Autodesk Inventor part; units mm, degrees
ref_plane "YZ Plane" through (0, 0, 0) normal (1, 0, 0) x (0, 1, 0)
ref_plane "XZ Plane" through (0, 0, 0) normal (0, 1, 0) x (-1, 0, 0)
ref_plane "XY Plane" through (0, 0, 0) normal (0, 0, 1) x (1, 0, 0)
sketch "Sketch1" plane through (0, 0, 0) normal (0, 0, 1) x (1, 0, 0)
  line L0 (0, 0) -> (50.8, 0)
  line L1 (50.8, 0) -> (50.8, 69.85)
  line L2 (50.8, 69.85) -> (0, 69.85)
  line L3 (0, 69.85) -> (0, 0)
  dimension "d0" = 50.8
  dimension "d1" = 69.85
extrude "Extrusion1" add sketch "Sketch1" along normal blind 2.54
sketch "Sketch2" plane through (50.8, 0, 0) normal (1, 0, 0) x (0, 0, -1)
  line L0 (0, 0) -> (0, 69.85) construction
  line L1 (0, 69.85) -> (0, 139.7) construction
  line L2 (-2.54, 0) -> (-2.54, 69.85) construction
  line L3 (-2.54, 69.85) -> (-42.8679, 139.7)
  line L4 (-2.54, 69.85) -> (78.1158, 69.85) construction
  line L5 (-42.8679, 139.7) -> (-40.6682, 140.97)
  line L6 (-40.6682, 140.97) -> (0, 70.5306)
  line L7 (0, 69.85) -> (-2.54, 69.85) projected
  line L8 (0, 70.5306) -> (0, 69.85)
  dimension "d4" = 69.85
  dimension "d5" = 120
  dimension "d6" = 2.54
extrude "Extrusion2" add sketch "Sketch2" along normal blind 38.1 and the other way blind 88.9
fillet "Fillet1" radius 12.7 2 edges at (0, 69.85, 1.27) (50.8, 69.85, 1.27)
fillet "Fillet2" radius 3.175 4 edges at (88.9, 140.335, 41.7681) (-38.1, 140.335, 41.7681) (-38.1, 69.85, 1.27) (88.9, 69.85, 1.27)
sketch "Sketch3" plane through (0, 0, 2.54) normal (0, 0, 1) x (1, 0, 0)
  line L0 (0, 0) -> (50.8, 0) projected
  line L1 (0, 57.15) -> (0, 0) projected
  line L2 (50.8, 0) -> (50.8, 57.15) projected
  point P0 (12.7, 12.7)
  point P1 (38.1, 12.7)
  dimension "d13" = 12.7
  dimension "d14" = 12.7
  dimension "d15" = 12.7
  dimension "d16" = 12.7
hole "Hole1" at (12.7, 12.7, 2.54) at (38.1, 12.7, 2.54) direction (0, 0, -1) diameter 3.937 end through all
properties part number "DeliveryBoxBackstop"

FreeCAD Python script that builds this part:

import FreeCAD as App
import Part
import Sketcher
from FreeCAD import Vector
Q = App.Units.Quantity


def edges_at(feature, points):
    """Names of the edges that pass closest to the given points."""
    edges = feature.Shape.Edges
    near = lambda p: min(range(len(edges)), key=lambda i: edges[i].distToShape(Part.Vertex(*p))[0])
    return sorted({f"Edge{near(p) + 1}" for p in points})


def add_polygon(sketch, points):
    """Adds a closed chain of lines whose ends are joined by coincident constraints."""
    first, n = sketch.GeometryCount, len(points)
    for a, b in zip(points, points[1:] + points[:1]):
        sketch.addGeometry(Part.LineSegment(App.Vector(*a, 0), App.Vector(*b, 0)), False)
    for i in range(n):
        sketch.addConstraint(Sketcher.Constraint("Coincident", first + i, 2, first + (i + 1) % n, 1))

doc = App.newDocument("Part")
body = doc.addObject("PartDesign::Body", "Body")

# Sketch on XY plane
sketch1 = body.newObject("Sketcher::SketchObject", "Sketch")
sketch1.AttachmentSupport = (doc.getObject("XY_Plane"), [""])
sketch1.MapMode = "FlatFace"
add_polygon(sketch1, [(0, 70), (0, 0), (51, 0), (51, 70)])  # lines 0-3
sketch1.addConstraint([
    Sketcher.Constraint("Vertical", 0),
    Sketcher.Constraint("Horizontal", 1),
    Sketcher.Constraint("Vertical", 2),
    Sketcher.Constraint("Horizontal", 3),
    Sketcher.Constraint("Coincident", 0, 2, -1, 1),
    Sketcher.Constraint("DistanceX", 1, 1, 1, 2, Q("2 in")),
    Sketcher.Constraint("DistanceY", 0, 2, 0, 1, Q("2.75 in")),
])
pad1 = body.newObject("PartDesign::Pad", "Pad")
pad1.Profile = sketch1
pad1.Length = Q("0.1 in")

# Sketch on YZ plane
sketch2 = body.newObject("Sketcher::SketchObject", "Sketch001")
sketch2.AttachmentSupport = (doc.getObject("YZ_Plane"), [""])
sketch2.MapMode = "FlatFace"
sketch2.AttachmentOffset = App.Placement(Vector(0, 0, 2 * 25.4), App.Rotation())
add_polygon(sketch2, [(139.7, 42.9), (69.8, 2.5), (69.8, 0), (70.5, 0), (141, 40.7)])  # lines 0-4
sketch2.addConstraint([
    Sketcher.Constraint("Vertical", 1),
    Sketcher.Constraint("Horizontal", 2),
    Sketcher.Constraint("PointOnObject", 1, 2, -1),
    Sketcher.Constraint("Parallel", 0, 3),
    Sketcher.Constraint("Perpendicular", 3, 4),
    Sketcher.Constraint("DistanceY", 1, 2, 1, 1, Q("0.1 in")),
    Sketcher.Constraint("Angle", 4, Q("120 deg")),
    Sketcher.Constraint("Distance", 4, Q("0.1 in")),
    Sketcher.Constraint("DistanceX", -1, 1, 0, 2, Q("2.75 in")),
    Sketcher.Constraint("DistanceX", 0, 2, 4, 2, Q("2.75 in")),
])
pad2 = body.newObject("PartDesign::Pad", "Pad001")
pad2.Profile = sketch2
pad2.Type = "TwoLengths"
pad2.Length = Q("1.5 in")
pad2.Length2 = Q("3.5 in")
doc.recompute()

fillet = body.newObject("PartDesign::Fillet", "Fillet")
fillet.Base = (pad2, edges_at(pad2, [(0, 69.85, 1.27), (50.8, 69.85, 1.27)]))
fillet.Radius = Q("0.5 in")
doc.recompute()

fillet2 = body.newObject("PartDesign::Fillet", "Fillet001")
fillet2.Base = (fillet, edges_at(fillet, [
    (88.9, 140.335, 41.768),
    (-38.1, 140.335, 41.768),
    (-38.1, 69.85, 1.27),
    (88.9, 69.85, 1.27),
]))
fillet2.Radius = Q("0.125 in")

# Sketch on XY plane
sketch3 = body.newObject("Sketcher::SketchObject", "Sketch002")
sketch3.AttachmentSupport = (doc.getObject("XY_Plane"), [""])
sketch3.MapMode = "FlatFace"
sketch3.AttachmentOffset = App.Placement(Vector(0, 0, 0.1 * 25.4), App.Rotation())
sketch3.addGeometry([
    Part.Circle(Vector(12.7, 12.7, 0), Vector(0, 0, 1), 2),
    Part.Circle(Vector(38.1, 12.7, 0), Vector(0, 0, 1), 2),
], False)
sketch3.addConstraint([
    Sketcher.Constraint("Equal", 0, 1),
    Sketcher.Constraint("Horizontal", 0, 3, 1, 3),
    Sketcher.Constraint("Diameter", 0, Q("0.155 in")),
    Sketcher.Constraint("DistanceX", 0, 3, 1, 3, Q("1 in")),
    Sketcher.Constraint("DistanceX", -1, 1, 0, 3, Q("0.5 in")),
    Sketcher.Constraint("DistanceY", -1, 1, 0, 3, Q("0.5 in")),
])
doc.recompute()
hole = body.newObject("PartDesign::Hole", "Hole")
hole.Profile = sketch3
hole.ThreadType = "None"
hole.Diameter = Q("0.155 in")
hole.DepthType = "ThroughAll"

doc.recompute()
